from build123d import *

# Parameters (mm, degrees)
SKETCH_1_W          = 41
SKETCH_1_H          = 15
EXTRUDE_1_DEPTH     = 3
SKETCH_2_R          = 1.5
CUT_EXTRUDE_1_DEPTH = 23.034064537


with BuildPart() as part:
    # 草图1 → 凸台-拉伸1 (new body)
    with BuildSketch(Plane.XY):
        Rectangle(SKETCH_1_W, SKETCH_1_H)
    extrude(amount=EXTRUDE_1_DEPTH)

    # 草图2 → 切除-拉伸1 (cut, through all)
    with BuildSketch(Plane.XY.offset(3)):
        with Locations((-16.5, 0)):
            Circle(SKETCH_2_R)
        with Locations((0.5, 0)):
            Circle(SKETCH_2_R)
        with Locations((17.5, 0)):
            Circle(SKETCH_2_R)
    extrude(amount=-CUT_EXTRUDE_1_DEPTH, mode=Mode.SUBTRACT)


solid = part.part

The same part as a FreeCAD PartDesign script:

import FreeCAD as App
import Part
import Sketcher

V = App.Vector
Q = App.Units.Quantity

doc = App.newDocument("Part")
body = doc.addObject("PartDesign::Body", "Body")

sketch1 = body.newObject("Sketcher::SketchObject", "Sketch")
sketch1.AttachmentSupport = (doc.getObject("XY_Plane"), [""])
sketch1.MapMode = "FlatFace"
sketch1.addGeometry([
    Part.LineSegment(V(-20.5, 7.5, 0), V(-20.5, -7.5, 0)),
    Part.LineSegment(V(-20.5, -7.5, 0), V(20.5, -7.5, 0)),
    Part.LineSegment(V(20.5, -7.5, 0), V(20.5, 7.5, 0)),
    Part.LineSegment(V(20.5, 7.5, 0), V(-20.5, 7.5, 0)),
], False)
sketch1.addConstraint([
    Sketcher.Constraint("Coincident", 0, 2, 1, 1),
    Sketcher.Constraint("Coincident", 1, 2, 2, 1),
    Sketcher.Constraint("Coincident", 2, 2, 3, 1),
    Sketcher.Constraint("Coincident", 3, 2, 0, 1),
    Sketcher.Constraint("Vertical", 0),
    Sketcher.Constraint("Horizontal", 1),
    Sketcher.Constraint("Vertical", 2),
    Sketcher.Constraint("Horizontal", 3),
    Sketcher.Constraint("Symmetric", 0, 2, 2, 2, -1, 1),
    Sketcher.Constraint("DistanceX", 1, 1, 1, 2, Q("41 mm")),
    Sketcher.Constraint("DistanceY", 0, 2, 0, 1, Q("15 mm")),
])
pad1 = body.newObject("PartDesign::Pad", "Pad")
pad1.Profile = sketch1
pad1.Length = 3

sketch2 = body.newObject("Sketcher::SketchObject", "Sketch001")
sketch2.AttachmentSupport = (doc.getObject("XY_Plane"), [""])
sketch2.MapMode = "FlatFace"
sketch2.AttachmentOffset = App.Placement(V(0, 0, 3), App.Rotation())
sketch2.addGeometry([
    Part.Circle(V(-16.5, 0, 0), V(0, 0, 1), 1.5),
    Part.Circle(V(0.5, 0, 0), V(0, 0, 1), 1.5),
    Part.Circle(V(17.5, 0, 0), V(0, 0, 1), 1.5),
], False)
sketch2.addConstraint([
    Sketcher.Constraint("Equal", 0, 1),
    Sketcher.Constraint("Equal", 1, 2),
    Sketcher.Constraint("PointOnObject", 0, 3, -1),
    Sketcher.Constraint("PointOnObject", 1, 3, -1),
    Sketcher.Constraint("PointOnObject", 2, 3, -1),
    Sketcher.Constraint("Diameter", 0, Q("3 mm")),
    Sketcher.Constraint("DistanceX", 0, 3, 1, 3, Q("17 mm")),
    Sketcher.Constraint("DistanceX", 1, 3, 2, 3, Q("17 mm")),
    Sketcher.Constraint("DistanceX", 0, 3, -1, 1, Q("16.5 mm")),
])
pocket1 = body.newObject("PartDesign::Pocket", "Pocket")
pocket1.Profile = sketch2
pocket1.Type = "ThroughAll"

doc.recompute()
